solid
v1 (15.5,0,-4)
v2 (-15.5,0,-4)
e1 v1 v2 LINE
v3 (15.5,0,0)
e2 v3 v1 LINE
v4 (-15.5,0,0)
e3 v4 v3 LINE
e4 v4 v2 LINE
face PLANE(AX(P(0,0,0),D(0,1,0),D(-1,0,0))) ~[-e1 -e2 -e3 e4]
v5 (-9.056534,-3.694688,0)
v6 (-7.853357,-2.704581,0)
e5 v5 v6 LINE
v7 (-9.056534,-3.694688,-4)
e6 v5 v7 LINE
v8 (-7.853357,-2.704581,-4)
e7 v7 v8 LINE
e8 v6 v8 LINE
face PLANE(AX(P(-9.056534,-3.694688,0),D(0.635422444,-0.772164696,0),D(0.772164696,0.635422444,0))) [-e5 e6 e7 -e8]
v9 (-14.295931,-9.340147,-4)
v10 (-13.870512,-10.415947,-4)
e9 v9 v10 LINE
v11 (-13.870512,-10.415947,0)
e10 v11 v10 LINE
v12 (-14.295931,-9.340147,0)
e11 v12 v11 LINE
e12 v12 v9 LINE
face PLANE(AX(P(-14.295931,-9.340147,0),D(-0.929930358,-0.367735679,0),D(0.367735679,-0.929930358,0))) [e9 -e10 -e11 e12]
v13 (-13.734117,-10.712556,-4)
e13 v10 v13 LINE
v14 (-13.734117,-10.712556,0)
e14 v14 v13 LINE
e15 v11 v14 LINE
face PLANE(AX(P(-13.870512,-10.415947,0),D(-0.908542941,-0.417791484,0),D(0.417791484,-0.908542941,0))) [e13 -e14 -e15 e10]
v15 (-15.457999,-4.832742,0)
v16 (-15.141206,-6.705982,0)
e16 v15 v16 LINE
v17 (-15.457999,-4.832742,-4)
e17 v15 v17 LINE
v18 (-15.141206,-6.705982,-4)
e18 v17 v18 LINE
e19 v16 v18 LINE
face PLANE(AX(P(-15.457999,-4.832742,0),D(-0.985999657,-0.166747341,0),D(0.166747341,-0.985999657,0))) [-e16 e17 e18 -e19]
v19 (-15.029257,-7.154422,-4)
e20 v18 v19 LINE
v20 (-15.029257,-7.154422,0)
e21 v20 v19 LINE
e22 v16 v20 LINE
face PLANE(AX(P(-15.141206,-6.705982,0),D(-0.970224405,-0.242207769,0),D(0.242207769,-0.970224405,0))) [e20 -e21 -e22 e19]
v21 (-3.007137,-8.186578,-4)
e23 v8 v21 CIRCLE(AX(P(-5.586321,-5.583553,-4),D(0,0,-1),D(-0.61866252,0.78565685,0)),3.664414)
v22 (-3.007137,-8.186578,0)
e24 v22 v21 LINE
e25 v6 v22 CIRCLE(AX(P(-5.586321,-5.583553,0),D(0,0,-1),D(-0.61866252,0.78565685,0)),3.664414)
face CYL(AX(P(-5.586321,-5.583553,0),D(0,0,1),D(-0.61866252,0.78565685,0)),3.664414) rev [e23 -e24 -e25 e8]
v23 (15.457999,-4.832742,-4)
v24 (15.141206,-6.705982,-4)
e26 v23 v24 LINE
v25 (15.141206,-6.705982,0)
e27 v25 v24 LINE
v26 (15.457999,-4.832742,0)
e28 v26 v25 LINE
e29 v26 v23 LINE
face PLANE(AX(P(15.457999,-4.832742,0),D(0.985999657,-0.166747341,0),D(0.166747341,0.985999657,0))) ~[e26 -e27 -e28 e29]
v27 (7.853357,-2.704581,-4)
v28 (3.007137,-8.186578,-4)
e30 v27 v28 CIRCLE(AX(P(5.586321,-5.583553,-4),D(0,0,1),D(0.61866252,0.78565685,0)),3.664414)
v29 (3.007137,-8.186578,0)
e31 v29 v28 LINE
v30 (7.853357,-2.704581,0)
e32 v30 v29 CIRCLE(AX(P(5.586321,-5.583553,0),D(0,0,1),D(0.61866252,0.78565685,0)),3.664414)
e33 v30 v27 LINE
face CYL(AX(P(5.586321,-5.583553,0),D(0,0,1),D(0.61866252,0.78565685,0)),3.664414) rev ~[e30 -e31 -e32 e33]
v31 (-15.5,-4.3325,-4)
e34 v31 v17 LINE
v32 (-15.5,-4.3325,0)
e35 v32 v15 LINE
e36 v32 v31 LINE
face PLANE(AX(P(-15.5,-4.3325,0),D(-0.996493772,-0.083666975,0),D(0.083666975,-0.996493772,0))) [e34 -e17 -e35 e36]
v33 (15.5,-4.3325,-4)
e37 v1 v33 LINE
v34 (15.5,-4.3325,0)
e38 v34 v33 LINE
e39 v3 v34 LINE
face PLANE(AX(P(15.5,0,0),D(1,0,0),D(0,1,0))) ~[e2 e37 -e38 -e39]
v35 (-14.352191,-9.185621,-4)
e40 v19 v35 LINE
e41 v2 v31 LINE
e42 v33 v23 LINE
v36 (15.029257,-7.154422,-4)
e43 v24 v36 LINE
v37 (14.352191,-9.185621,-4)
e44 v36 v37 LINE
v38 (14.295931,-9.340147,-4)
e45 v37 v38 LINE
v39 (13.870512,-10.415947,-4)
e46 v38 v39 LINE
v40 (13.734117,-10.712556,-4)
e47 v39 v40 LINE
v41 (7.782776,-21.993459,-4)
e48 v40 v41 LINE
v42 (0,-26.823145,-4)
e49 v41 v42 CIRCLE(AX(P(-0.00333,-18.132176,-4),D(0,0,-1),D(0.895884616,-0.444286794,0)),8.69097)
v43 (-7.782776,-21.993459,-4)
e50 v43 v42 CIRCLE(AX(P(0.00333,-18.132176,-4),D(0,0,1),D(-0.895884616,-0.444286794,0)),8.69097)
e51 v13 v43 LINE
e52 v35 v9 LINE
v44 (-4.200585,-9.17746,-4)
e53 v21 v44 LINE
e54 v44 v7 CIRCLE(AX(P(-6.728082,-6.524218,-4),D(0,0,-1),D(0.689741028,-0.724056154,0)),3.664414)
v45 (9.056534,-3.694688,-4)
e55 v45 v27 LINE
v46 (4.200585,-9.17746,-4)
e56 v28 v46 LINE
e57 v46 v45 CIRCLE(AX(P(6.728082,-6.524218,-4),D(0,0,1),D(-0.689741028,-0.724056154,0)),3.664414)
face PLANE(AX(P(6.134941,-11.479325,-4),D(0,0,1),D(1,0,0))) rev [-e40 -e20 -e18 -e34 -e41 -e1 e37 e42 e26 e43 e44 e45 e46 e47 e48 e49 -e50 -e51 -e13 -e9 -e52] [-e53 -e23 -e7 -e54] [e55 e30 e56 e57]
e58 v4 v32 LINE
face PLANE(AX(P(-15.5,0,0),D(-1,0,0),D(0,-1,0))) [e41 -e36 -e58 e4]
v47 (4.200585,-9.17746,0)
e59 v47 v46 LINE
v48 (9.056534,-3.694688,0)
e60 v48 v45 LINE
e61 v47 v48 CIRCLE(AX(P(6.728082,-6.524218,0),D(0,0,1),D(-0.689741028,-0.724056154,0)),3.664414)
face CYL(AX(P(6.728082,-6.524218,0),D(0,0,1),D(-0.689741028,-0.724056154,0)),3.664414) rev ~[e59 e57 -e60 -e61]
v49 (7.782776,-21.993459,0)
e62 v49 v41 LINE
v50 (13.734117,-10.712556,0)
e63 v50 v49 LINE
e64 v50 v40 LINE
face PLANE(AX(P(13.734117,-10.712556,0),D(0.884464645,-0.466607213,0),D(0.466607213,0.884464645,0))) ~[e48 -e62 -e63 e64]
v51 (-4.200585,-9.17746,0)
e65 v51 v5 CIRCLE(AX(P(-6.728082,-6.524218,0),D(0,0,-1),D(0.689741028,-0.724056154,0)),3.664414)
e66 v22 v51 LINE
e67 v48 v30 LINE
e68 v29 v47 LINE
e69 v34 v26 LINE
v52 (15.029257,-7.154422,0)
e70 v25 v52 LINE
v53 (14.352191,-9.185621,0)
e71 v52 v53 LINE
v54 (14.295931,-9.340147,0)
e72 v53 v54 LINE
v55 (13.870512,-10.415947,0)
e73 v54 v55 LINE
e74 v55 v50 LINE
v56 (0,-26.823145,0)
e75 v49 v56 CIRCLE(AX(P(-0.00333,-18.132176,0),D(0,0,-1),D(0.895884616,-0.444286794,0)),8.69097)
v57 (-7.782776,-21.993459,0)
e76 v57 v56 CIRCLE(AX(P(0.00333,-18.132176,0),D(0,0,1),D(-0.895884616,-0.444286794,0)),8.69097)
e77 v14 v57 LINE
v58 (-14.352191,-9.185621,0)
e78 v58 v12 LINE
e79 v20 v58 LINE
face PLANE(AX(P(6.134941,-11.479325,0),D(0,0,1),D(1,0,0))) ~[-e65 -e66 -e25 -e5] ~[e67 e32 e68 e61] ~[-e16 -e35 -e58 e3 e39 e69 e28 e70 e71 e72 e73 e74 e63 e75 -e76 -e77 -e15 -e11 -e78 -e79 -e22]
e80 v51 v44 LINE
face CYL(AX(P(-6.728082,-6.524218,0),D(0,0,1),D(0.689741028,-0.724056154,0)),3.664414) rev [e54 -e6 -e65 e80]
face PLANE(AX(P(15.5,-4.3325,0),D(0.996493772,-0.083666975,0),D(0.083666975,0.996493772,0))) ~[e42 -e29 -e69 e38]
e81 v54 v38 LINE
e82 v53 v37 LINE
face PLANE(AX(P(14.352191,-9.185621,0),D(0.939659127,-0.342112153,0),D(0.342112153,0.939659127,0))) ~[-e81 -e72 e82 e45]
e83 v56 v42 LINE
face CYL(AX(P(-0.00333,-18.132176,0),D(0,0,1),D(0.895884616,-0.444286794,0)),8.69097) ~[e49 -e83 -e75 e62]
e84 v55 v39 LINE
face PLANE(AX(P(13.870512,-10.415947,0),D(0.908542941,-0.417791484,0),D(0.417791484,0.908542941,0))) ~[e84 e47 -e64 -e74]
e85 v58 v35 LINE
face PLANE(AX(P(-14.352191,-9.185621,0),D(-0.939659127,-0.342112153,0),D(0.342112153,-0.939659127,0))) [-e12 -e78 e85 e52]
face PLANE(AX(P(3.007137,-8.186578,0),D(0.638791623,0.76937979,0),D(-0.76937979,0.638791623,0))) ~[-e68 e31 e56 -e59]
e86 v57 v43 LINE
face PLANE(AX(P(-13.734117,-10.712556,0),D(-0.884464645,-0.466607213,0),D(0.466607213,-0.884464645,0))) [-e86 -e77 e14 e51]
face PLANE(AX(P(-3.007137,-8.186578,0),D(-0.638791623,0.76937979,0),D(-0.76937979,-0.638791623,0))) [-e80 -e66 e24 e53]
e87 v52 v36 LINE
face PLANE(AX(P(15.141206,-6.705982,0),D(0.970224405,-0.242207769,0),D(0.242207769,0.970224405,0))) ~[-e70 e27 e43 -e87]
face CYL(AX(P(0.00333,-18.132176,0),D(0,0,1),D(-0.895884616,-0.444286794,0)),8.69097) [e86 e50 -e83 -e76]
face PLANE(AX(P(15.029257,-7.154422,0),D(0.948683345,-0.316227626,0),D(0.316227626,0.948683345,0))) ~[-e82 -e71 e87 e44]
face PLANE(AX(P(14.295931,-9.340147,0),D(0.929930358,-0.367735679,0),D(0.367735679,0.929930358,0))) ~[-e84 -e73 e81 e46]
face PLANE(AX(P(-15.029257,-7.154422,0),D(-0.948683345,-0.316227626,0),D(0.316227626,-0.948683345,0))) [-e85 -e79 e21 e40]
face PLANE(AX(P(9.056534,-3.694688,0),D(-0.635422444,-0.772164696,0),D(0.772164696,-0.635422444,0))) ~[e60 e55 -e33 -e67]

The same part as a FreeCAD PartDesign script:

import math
import FreeCAD as App
import Part
import Sketcher

V = App.Vector
Q = App.Units.Quantity

doc = App.newDocument("Part")
body = doc.addObject("PartDesign::Body", "Body")

sketch1 = body.newObject("Sketcher::SketchObject", "Sketch")
sketch1.AttachmentSupport = (doc.getObject("XY_Plane"), [""])
sketch1.MapMode = "FlatFace"
sketch1.addGeometry([
    Part.LineSegment(V(0, 0, 0), V(-15.5, 0, 0)),
    Part.LineSegment(V(-15.5, 0, 0), V(-15.5, -4.33, 0)),
    Part.LineSegment(V(-15.5, -4.33, 0), V(-15.46, -4.83, 0)),
    Part.LineSegment(V(-15.46, -4.83, 0), V(-15.14, -6.71, 0)),
    Part.LineSegment(V(-15.14, -6.71, 0), V(-15.03, -7.15, 0)),
    Part.LineSegment(V(-15.03, -7.15, 0), V(-14.35, -9.19, 0)),
    Part.LineSegment(V(-14.35, -9.19, 0), V(-14.3, -9.34, 0)),
    Part.LineSegment(V(-14.3, -9.34, 0), V(-13.87, -10.42, 0)),
    Part.LineSegment(V(-13.87, -10.42, 0), V(-13.73, -10.71, 0)),
    Part.LineSegment(V(-13.73, -10.71, 0), V(-7.78, -21.99, 0)),
    Part.ArcOfCircle(Part.Circle(V(0, -18.13, 0), V(0, 0, 1), 8.69), math.radians(-154), math.radians(-90)),
    Part.LineSegment(V(0, -26.82, 0), V(0, 0, 0)),
    Part.ArcOfCircle(Part.Circle(V(-6.73, -6.52, 0), V(0, 0, 1), 3.66), math.radians(129), math.radians(314)),
    Part.LineSegment(V(-9.06, -3.69, 0), V(-7.85, -2.7, 0)),
    Part.ArcOfCircle(Part.Circle(V(-5.59, -5.58, 0), V(0, 0, 1), 3.66), math.radians(-45), math.radians(128)),
    Part.LineSegment(V(-3.01, -8.19, 0), V(-4.2, -9.18, 0)),
], False)
sketch1.addConstraint([
    Sketcher.Constraint("Coincident", 0, 2, 1, 1),
    Sketcher.Constraint("Coincident", 1, 2, 2, 1),
    Sketcher.Constraint("Coincident", 2, 2, 3, 1),
    Sketcher.Constraint("Coincident", 3, 2, 4, 1),
    Sketcher.Constraint("Coincident", 4, 2, 5, 1),
    Sketcher.Constraint("Coincident", 5, 2, 6, 1),
    Sketcher.Constraint("Coincident", 6, 2, 7, 1),
    Sketcher.Constraint("Coincident", 7, 2, 8, 1),
    Sketcher.Constraint("Coincident", 8, 2, 9, 1),
    Sketcher.Constraint("Coincident", 9, 2, 10, 1),
    Sketcher.Constraint("Coincident", 10, 2, 11, 1),
    Sketcher.Constraint("Coincident", 11, 2, 0, 1),
    Sketcher.Constraint("Tangent", 12, 1, 13, 1),
    Sketcher.Constraint("Coincident", 13, 2, 14, 2),
    Sketcher.Constraint("Coincident", 14, 1, 15, 1),
    Sketcher.Constraint("Coincident", 15, 2, 12, 2),
    Sketcher.Constraint("Horizontal", 0),
    Sketcher.Constraint("Vertical", 1),
    Sketcher.Constraint("Vertical", 11),
    Sketcher.Constraint("Coincident", 11, 2, -1, 1),
    Sketcher.Constraint("Equal", 12, 14),
    Sketcher.Constraint("DistanceX", 0, 2, 0, 1, Q("15.5 mm")),
    Sketcher.Constraint("Radius", 10, Q("8.69097 mm")),
    Sketcher.Constraint("DistanceY", 1, 2, 1, 1, Q("4.3325 mm")),
    Sketcher.Constraint("DistanceX", 2, 2, -1, 1, Q("15.457999 mm")),
    Sketcher.Constraint("Radius", 12, Q("3.664414 mm")),
    Sketcher.Constraint("Distance", 9, Q("12.754499 mm")),
    Sketcher.Constraint("DistanceY", 5, 2, 4, 2, Q("2.031199 mm")),
    Sketcher.Constraint("DistanceY", 7, 2, 6, 2, Q("1.0758 mm")),
    Sketcher.Constraint("DistanceY", 10, 2, 7, 2, Q("16.407198 mm")),
    Sketcher.Constraint("Distance", 3, Q("1.899838 mm")),
    Sketcher.Constraint("Distance", 5, Q("2.141072 mm")),
    Sketcher.Constraint("Distance", 6, Q("0.164449 mm")),
    Sketcher.Constraint("Distance", 7, Q("1.156861 mm")),
    Sketcher.Constraint("Distance", 15, Q("1.551182 mm")),
    Sketcher.Constraint("DistanceY", 11, 1, 11, 2, Q("26.823145 mm")),
    Sketcher.Constraint("DistanceX", -1, 1, 10, 3, Q("0.00333 mm")),
    Sketcher.Constraint("DistanceX", 12, 3, -1, 1, Q("6.728082 mm")),
    Sketcher.Constraint("DistanceY", 12, 3, -1, 1, Q("6.524218 mm")),
    Sketcher.Constraint("DistanceX", 14, 3, -1, 1, Q("5.586321 mm")),
    Sketcher.Constraint("DistanceY", 2, 2, -1, 1, Q("4.832742 mm")),
    Sketcher.Constraint("DistanceY", 3, 2, -1, 1, Q("6.705982 mm")),
    Sketcher.Constraint("DistanceX", 5, 2, -1, 1, Q("14.352191 mm")),
    Sketcher.Constraint("DistanceY", 5, 2, -1, 1, Q("9.185621 mm")),
    Sketcher.Constraint("DistanceY", 9, 2, -1, 1, Q("21.993459 mm")),
    Sketcher.Constraint("DistanceY", 12, 1, -1, 1, Q("3.694688 mm")),
    Sketcher.Constraint("DistanceY", 13, 2, -1, 1, Q("2.704581 mm")),
    Sketcher.Constraint("DistanceY", 14, 1, -1, 1, Q("8.186578 mm")),
    Sketcher.Constraint("DistanceY", 8, 2, 7, 2, Q("0.296609 mm")),
])
pad1 = body.newObject("PartDesign::Pad", "Pad")
pad1.Profile = sketch1
pad1.Length = 4
pad1.Reversed = True
body2 = doc.addObject("PartDesign::Body", "Body001")
doc.recompute()

body2.BaseFeature = body
doc.recompute()

mirroring = doc.addObject("Part::Mirroring", "Mirroring")
mirroring.Source = body
mirroring.Base = V(0, 0, 0)
mirroring.Normal = V(1, 0, 0)
body3 = doc.addObject("PartDesign::Body", "Body002")
body3.BaseFeature = mirroring
boolean = body2.newObject("PartDesign::Boolean", "Boolean")
boolean.Type = "Fuse"
boolean.addObjects([body3])
doc.recompute()
mirroring.Visibility = False

doc.recompute()
